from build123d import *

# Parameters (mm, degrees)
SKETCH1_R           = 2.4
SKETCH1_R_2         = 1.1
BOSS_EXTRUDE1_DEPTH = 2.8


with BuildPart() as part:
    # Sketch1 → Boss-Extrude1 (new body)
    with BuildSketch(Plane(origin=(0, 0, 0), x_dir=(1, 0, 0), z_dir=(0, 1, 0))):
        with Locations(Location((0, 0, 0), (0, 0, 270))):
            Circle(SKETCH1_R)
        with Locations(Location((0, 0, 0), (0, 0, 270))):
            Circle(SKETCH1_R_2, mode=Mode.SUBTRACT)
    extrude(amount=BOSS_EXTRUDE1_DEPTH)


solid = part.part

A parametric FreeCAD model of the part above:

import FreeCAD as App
import Part
import Sketcher

V = App.Vector
Q = App.Units.Quantity

doc = App.newDocument("Part")
body = doc.addObject("PartDesign::Body", "Body")

sketch1 = doc.addObject("Sketcher::SketchObject", "Sketch")
body.addObject(sketch1)
sketch1.AttachmentSupport = (doc.XZ_Plane, [""])
sketch1.MapMode = "FlatFace"
sketch1.addGeometry([
    Part.Circle(V(0, 0, 0), V(0, 0, 1), 2.4),
    Part.Circle(V(0, 0, 0), V(0, 0, 1), 1.1),
], False)
sketch1.addConstraint([
    Sketcher.Constraint("Coincident", 0, 3, -1, 1),
    Sketcher.Constraint("Coincident", 1, 3, -1, 1),
    Sketcher.Constraint("Diameter", 0, Q("4.8 mm")),
    Sketcher.Constraint("Diameter", 1, Q("2.2 mm")),
])
pad1 = doc.addObject("PartDesign::Pad", "Pad")
body.addObject(pad1)
pad1.Profile = sketch1
pad1.Length = 2.8
pad1.Reversed = True

doc.recompute()
